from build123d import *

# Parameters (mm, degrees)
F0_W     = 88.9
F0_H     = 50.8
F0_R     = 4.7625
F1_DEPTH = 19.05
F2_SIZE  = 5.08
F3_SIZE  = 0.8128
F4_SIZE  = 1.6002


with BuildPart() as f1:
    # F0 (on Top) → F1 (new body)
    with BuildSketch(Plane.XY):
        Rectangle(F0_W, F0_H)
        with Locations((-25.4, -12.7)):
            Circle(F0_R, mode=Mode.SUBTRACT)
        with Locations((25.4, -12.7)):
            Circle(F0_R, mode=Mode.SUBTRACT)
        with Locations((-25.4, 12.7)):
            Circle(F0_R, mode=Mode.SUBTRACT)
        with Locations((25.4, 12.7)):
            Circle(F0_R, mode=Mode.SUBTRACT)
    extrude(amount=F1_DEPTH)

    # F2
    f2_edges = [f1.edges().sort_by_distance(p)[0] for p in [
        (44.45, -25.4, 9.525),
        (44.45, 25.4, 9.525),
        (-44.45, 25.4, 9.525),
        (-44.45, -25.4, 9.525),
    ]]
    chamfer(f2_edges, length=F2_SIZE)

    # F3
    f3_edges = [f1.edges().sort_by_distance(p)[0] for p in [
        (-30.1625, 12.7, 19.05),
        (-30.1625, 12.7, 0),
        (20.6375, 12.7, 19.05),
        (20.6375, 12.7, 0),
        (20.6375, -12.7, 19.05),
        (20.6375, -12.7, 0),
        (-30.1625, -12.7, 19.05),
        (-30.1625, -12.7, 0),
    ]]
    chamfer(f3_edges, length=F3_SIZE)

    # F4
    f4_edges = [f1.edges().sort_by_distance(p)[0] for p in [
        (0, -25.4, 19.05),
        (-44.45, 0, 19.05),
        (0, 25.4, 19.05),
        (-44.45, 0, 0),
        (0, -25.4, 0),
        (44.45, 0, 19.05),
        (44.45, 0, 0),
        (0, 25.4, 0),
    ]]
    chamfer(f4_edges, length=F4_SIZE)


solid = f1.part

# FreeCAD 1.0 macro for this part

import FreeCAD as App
import Part
import Sketcher
from FreeCAD import Vector
Q = App.Units.Quantity


def edges_at(feature, points):
    """Names of the edges that pass closest to the given points."""
    edges = feature.Shape.Edges
    near = lambda p: min(range(len(edges)), key=lambda i: edges[i].distToShape(Part.Vertex(*p))[0])
    return sorted({f"Edge{near(p) + 1}" for p in points})


def add_polygon(sketch, points):
    """Adds a closed chain of lines whose ends are joined by coincident constraints."""
    first, n = sketch.GeometryCount, len(points)
    for a, b in zip(points, points[1:] + points[:1]):
        sketch.addGeometry(Part.LineSegment(App.Vector(*a, 0), App.Vector(*b, 0)), False)
    for i in range(n):
        sketch.addConstraint(Sketcher.Constraint("Coincident", first + i, 2, first + (i + 1) % n, 1))

doc = App.newDocument("Part")
body = doc.addObject("PartDesign::Body", "Body")

# Sketch on XY plane
sketch1 = body.newObject("Sketcher::SketchObject", "Sketch")
sketch1.AttachmentSupport = (doc.getObject("XY_Plane"), [""])
sketch1.MapMode = "FlatFace"
add_polygon(sketch1, [(-44.5, 25.4), (-44.5, -25.4), (44.5, -25.4), (44.5, 25.4)])  # lines 0-3
sketch1.addGeometry(Part.Circle(Vector(-25.4, -12.7, 0), Vector(0, 0, 1), 4.8), False)  # 4
sketch1.addGeometry(Part.Circle(Vector(25.4, -12.7, 0), Vector(0, 0, 1), 4.8), False)  # 5
sketch1.addGeometry(Part.Circle(Vector(-25.4, 12.7, 0), Vector(0, 0, 1), 4.8), False)  # 6
sketch1.addGeometry(Part.Circle(Vector(25.4, 12.7, 0), Vector(0, 0, 1), 4.8), False)  # 7
sketch1.addConstraint([
    Sketcher.Constraint("Vertical", 0),
    Sketcher.Constraint("Horizontal", 1),
    Sketcher.Constraint("Vertical", 2),
    Sketcher.Constraint("Horizontal", 3),
    Sketcher.Constraint("Equal", 4, 5),
    Sketcher.Constraint("Equal", 5, 6),
    Sketcher.Constraint("Equal", 6, 7),
    Sketcher.Constraint("Symmetric", 5, 3, 6, 3, -1, 1),
    Sketcher.Constraint("Symmetric", 4, 3, 7, 3, -1, 1),
    Sketcher.Constraint("Symmetric", 0, 2, 2, 2, -1, 1),
    Sketcher.Constraint("Symmetric", 4, 3, 5, 3, -2),
    Sketcher.Constraint("DistanceY", 0, 2, 0, 1, Q("2 in")),
    Sketcher.Constraint("Diameter", 4, Q("0.375 in")),
    Sketcher.Constraint("DistanceX", 1, 1, 1, 2, Q("3.5 in")),
    Sketcher.Constraint("DistanceX", 4, 3, -1, 1, Q("1 in")),
    Sketcher.Constraint("DistanceY", 4, 3, 6, 3, Q("1 in")),
])
pad1 = body.newObject("PartDesign::Pad", "Pad")
pad1.Profile = sketch1
pad1.Length = Q("0.75 in")
doc.recompute()

chamfer = body.newObject("PartDesign::Chamfer", "Chamfer")
chamfer.Base = (pad1, edges_at(pad1, [
    (44.45, -25.4, 9.525),
    (44.45, 25.4, 9.525),
    (-44.45, 25.4, 9.525),
    (-44.45, -25.4, 9.525),
]))
chamfer.Size = Q("0.2 in")
doc.recompute()

chamfer2 = body.newObject("PartDesign::Chamfer", "Chamfer001")
chamfer2.Base = (chamfer, edges_at(chamfer, [
    (-30.163, 12.7, 19.05),
    (-30.163, 12.7, 0),
    (20.637, 12.7, 19.05),
    (20.637, 12.7, 0),
    (20.637, -12.7, 19.05),
    (20.637, -12.7, 0),
    (-30.163, -12.7, 19.05),
    (-30.163, -12.7, 0),
]))
chamfer2.Size = Q("0.032 in")
doc.recompute()

chamfer3 = body.newObject("PartDesign::Chamfer", "Chamfer002")
chamfer3.Base = (chamfer2, edges_at(chamfer2, [
    (0, -25.4, 19.05),
    (-44.45, 0, 19.05),
    (0, 25.4, 19.05),
    (-44.45, 0, 0),
    (0, -25.4, 0),
    (44.45, 0, 19.05),
    (44.45, 0, 0),
    (0, 25.4, 0),
]))
chamfer3.Size = Q("0.063 in")

doc.recompute()
